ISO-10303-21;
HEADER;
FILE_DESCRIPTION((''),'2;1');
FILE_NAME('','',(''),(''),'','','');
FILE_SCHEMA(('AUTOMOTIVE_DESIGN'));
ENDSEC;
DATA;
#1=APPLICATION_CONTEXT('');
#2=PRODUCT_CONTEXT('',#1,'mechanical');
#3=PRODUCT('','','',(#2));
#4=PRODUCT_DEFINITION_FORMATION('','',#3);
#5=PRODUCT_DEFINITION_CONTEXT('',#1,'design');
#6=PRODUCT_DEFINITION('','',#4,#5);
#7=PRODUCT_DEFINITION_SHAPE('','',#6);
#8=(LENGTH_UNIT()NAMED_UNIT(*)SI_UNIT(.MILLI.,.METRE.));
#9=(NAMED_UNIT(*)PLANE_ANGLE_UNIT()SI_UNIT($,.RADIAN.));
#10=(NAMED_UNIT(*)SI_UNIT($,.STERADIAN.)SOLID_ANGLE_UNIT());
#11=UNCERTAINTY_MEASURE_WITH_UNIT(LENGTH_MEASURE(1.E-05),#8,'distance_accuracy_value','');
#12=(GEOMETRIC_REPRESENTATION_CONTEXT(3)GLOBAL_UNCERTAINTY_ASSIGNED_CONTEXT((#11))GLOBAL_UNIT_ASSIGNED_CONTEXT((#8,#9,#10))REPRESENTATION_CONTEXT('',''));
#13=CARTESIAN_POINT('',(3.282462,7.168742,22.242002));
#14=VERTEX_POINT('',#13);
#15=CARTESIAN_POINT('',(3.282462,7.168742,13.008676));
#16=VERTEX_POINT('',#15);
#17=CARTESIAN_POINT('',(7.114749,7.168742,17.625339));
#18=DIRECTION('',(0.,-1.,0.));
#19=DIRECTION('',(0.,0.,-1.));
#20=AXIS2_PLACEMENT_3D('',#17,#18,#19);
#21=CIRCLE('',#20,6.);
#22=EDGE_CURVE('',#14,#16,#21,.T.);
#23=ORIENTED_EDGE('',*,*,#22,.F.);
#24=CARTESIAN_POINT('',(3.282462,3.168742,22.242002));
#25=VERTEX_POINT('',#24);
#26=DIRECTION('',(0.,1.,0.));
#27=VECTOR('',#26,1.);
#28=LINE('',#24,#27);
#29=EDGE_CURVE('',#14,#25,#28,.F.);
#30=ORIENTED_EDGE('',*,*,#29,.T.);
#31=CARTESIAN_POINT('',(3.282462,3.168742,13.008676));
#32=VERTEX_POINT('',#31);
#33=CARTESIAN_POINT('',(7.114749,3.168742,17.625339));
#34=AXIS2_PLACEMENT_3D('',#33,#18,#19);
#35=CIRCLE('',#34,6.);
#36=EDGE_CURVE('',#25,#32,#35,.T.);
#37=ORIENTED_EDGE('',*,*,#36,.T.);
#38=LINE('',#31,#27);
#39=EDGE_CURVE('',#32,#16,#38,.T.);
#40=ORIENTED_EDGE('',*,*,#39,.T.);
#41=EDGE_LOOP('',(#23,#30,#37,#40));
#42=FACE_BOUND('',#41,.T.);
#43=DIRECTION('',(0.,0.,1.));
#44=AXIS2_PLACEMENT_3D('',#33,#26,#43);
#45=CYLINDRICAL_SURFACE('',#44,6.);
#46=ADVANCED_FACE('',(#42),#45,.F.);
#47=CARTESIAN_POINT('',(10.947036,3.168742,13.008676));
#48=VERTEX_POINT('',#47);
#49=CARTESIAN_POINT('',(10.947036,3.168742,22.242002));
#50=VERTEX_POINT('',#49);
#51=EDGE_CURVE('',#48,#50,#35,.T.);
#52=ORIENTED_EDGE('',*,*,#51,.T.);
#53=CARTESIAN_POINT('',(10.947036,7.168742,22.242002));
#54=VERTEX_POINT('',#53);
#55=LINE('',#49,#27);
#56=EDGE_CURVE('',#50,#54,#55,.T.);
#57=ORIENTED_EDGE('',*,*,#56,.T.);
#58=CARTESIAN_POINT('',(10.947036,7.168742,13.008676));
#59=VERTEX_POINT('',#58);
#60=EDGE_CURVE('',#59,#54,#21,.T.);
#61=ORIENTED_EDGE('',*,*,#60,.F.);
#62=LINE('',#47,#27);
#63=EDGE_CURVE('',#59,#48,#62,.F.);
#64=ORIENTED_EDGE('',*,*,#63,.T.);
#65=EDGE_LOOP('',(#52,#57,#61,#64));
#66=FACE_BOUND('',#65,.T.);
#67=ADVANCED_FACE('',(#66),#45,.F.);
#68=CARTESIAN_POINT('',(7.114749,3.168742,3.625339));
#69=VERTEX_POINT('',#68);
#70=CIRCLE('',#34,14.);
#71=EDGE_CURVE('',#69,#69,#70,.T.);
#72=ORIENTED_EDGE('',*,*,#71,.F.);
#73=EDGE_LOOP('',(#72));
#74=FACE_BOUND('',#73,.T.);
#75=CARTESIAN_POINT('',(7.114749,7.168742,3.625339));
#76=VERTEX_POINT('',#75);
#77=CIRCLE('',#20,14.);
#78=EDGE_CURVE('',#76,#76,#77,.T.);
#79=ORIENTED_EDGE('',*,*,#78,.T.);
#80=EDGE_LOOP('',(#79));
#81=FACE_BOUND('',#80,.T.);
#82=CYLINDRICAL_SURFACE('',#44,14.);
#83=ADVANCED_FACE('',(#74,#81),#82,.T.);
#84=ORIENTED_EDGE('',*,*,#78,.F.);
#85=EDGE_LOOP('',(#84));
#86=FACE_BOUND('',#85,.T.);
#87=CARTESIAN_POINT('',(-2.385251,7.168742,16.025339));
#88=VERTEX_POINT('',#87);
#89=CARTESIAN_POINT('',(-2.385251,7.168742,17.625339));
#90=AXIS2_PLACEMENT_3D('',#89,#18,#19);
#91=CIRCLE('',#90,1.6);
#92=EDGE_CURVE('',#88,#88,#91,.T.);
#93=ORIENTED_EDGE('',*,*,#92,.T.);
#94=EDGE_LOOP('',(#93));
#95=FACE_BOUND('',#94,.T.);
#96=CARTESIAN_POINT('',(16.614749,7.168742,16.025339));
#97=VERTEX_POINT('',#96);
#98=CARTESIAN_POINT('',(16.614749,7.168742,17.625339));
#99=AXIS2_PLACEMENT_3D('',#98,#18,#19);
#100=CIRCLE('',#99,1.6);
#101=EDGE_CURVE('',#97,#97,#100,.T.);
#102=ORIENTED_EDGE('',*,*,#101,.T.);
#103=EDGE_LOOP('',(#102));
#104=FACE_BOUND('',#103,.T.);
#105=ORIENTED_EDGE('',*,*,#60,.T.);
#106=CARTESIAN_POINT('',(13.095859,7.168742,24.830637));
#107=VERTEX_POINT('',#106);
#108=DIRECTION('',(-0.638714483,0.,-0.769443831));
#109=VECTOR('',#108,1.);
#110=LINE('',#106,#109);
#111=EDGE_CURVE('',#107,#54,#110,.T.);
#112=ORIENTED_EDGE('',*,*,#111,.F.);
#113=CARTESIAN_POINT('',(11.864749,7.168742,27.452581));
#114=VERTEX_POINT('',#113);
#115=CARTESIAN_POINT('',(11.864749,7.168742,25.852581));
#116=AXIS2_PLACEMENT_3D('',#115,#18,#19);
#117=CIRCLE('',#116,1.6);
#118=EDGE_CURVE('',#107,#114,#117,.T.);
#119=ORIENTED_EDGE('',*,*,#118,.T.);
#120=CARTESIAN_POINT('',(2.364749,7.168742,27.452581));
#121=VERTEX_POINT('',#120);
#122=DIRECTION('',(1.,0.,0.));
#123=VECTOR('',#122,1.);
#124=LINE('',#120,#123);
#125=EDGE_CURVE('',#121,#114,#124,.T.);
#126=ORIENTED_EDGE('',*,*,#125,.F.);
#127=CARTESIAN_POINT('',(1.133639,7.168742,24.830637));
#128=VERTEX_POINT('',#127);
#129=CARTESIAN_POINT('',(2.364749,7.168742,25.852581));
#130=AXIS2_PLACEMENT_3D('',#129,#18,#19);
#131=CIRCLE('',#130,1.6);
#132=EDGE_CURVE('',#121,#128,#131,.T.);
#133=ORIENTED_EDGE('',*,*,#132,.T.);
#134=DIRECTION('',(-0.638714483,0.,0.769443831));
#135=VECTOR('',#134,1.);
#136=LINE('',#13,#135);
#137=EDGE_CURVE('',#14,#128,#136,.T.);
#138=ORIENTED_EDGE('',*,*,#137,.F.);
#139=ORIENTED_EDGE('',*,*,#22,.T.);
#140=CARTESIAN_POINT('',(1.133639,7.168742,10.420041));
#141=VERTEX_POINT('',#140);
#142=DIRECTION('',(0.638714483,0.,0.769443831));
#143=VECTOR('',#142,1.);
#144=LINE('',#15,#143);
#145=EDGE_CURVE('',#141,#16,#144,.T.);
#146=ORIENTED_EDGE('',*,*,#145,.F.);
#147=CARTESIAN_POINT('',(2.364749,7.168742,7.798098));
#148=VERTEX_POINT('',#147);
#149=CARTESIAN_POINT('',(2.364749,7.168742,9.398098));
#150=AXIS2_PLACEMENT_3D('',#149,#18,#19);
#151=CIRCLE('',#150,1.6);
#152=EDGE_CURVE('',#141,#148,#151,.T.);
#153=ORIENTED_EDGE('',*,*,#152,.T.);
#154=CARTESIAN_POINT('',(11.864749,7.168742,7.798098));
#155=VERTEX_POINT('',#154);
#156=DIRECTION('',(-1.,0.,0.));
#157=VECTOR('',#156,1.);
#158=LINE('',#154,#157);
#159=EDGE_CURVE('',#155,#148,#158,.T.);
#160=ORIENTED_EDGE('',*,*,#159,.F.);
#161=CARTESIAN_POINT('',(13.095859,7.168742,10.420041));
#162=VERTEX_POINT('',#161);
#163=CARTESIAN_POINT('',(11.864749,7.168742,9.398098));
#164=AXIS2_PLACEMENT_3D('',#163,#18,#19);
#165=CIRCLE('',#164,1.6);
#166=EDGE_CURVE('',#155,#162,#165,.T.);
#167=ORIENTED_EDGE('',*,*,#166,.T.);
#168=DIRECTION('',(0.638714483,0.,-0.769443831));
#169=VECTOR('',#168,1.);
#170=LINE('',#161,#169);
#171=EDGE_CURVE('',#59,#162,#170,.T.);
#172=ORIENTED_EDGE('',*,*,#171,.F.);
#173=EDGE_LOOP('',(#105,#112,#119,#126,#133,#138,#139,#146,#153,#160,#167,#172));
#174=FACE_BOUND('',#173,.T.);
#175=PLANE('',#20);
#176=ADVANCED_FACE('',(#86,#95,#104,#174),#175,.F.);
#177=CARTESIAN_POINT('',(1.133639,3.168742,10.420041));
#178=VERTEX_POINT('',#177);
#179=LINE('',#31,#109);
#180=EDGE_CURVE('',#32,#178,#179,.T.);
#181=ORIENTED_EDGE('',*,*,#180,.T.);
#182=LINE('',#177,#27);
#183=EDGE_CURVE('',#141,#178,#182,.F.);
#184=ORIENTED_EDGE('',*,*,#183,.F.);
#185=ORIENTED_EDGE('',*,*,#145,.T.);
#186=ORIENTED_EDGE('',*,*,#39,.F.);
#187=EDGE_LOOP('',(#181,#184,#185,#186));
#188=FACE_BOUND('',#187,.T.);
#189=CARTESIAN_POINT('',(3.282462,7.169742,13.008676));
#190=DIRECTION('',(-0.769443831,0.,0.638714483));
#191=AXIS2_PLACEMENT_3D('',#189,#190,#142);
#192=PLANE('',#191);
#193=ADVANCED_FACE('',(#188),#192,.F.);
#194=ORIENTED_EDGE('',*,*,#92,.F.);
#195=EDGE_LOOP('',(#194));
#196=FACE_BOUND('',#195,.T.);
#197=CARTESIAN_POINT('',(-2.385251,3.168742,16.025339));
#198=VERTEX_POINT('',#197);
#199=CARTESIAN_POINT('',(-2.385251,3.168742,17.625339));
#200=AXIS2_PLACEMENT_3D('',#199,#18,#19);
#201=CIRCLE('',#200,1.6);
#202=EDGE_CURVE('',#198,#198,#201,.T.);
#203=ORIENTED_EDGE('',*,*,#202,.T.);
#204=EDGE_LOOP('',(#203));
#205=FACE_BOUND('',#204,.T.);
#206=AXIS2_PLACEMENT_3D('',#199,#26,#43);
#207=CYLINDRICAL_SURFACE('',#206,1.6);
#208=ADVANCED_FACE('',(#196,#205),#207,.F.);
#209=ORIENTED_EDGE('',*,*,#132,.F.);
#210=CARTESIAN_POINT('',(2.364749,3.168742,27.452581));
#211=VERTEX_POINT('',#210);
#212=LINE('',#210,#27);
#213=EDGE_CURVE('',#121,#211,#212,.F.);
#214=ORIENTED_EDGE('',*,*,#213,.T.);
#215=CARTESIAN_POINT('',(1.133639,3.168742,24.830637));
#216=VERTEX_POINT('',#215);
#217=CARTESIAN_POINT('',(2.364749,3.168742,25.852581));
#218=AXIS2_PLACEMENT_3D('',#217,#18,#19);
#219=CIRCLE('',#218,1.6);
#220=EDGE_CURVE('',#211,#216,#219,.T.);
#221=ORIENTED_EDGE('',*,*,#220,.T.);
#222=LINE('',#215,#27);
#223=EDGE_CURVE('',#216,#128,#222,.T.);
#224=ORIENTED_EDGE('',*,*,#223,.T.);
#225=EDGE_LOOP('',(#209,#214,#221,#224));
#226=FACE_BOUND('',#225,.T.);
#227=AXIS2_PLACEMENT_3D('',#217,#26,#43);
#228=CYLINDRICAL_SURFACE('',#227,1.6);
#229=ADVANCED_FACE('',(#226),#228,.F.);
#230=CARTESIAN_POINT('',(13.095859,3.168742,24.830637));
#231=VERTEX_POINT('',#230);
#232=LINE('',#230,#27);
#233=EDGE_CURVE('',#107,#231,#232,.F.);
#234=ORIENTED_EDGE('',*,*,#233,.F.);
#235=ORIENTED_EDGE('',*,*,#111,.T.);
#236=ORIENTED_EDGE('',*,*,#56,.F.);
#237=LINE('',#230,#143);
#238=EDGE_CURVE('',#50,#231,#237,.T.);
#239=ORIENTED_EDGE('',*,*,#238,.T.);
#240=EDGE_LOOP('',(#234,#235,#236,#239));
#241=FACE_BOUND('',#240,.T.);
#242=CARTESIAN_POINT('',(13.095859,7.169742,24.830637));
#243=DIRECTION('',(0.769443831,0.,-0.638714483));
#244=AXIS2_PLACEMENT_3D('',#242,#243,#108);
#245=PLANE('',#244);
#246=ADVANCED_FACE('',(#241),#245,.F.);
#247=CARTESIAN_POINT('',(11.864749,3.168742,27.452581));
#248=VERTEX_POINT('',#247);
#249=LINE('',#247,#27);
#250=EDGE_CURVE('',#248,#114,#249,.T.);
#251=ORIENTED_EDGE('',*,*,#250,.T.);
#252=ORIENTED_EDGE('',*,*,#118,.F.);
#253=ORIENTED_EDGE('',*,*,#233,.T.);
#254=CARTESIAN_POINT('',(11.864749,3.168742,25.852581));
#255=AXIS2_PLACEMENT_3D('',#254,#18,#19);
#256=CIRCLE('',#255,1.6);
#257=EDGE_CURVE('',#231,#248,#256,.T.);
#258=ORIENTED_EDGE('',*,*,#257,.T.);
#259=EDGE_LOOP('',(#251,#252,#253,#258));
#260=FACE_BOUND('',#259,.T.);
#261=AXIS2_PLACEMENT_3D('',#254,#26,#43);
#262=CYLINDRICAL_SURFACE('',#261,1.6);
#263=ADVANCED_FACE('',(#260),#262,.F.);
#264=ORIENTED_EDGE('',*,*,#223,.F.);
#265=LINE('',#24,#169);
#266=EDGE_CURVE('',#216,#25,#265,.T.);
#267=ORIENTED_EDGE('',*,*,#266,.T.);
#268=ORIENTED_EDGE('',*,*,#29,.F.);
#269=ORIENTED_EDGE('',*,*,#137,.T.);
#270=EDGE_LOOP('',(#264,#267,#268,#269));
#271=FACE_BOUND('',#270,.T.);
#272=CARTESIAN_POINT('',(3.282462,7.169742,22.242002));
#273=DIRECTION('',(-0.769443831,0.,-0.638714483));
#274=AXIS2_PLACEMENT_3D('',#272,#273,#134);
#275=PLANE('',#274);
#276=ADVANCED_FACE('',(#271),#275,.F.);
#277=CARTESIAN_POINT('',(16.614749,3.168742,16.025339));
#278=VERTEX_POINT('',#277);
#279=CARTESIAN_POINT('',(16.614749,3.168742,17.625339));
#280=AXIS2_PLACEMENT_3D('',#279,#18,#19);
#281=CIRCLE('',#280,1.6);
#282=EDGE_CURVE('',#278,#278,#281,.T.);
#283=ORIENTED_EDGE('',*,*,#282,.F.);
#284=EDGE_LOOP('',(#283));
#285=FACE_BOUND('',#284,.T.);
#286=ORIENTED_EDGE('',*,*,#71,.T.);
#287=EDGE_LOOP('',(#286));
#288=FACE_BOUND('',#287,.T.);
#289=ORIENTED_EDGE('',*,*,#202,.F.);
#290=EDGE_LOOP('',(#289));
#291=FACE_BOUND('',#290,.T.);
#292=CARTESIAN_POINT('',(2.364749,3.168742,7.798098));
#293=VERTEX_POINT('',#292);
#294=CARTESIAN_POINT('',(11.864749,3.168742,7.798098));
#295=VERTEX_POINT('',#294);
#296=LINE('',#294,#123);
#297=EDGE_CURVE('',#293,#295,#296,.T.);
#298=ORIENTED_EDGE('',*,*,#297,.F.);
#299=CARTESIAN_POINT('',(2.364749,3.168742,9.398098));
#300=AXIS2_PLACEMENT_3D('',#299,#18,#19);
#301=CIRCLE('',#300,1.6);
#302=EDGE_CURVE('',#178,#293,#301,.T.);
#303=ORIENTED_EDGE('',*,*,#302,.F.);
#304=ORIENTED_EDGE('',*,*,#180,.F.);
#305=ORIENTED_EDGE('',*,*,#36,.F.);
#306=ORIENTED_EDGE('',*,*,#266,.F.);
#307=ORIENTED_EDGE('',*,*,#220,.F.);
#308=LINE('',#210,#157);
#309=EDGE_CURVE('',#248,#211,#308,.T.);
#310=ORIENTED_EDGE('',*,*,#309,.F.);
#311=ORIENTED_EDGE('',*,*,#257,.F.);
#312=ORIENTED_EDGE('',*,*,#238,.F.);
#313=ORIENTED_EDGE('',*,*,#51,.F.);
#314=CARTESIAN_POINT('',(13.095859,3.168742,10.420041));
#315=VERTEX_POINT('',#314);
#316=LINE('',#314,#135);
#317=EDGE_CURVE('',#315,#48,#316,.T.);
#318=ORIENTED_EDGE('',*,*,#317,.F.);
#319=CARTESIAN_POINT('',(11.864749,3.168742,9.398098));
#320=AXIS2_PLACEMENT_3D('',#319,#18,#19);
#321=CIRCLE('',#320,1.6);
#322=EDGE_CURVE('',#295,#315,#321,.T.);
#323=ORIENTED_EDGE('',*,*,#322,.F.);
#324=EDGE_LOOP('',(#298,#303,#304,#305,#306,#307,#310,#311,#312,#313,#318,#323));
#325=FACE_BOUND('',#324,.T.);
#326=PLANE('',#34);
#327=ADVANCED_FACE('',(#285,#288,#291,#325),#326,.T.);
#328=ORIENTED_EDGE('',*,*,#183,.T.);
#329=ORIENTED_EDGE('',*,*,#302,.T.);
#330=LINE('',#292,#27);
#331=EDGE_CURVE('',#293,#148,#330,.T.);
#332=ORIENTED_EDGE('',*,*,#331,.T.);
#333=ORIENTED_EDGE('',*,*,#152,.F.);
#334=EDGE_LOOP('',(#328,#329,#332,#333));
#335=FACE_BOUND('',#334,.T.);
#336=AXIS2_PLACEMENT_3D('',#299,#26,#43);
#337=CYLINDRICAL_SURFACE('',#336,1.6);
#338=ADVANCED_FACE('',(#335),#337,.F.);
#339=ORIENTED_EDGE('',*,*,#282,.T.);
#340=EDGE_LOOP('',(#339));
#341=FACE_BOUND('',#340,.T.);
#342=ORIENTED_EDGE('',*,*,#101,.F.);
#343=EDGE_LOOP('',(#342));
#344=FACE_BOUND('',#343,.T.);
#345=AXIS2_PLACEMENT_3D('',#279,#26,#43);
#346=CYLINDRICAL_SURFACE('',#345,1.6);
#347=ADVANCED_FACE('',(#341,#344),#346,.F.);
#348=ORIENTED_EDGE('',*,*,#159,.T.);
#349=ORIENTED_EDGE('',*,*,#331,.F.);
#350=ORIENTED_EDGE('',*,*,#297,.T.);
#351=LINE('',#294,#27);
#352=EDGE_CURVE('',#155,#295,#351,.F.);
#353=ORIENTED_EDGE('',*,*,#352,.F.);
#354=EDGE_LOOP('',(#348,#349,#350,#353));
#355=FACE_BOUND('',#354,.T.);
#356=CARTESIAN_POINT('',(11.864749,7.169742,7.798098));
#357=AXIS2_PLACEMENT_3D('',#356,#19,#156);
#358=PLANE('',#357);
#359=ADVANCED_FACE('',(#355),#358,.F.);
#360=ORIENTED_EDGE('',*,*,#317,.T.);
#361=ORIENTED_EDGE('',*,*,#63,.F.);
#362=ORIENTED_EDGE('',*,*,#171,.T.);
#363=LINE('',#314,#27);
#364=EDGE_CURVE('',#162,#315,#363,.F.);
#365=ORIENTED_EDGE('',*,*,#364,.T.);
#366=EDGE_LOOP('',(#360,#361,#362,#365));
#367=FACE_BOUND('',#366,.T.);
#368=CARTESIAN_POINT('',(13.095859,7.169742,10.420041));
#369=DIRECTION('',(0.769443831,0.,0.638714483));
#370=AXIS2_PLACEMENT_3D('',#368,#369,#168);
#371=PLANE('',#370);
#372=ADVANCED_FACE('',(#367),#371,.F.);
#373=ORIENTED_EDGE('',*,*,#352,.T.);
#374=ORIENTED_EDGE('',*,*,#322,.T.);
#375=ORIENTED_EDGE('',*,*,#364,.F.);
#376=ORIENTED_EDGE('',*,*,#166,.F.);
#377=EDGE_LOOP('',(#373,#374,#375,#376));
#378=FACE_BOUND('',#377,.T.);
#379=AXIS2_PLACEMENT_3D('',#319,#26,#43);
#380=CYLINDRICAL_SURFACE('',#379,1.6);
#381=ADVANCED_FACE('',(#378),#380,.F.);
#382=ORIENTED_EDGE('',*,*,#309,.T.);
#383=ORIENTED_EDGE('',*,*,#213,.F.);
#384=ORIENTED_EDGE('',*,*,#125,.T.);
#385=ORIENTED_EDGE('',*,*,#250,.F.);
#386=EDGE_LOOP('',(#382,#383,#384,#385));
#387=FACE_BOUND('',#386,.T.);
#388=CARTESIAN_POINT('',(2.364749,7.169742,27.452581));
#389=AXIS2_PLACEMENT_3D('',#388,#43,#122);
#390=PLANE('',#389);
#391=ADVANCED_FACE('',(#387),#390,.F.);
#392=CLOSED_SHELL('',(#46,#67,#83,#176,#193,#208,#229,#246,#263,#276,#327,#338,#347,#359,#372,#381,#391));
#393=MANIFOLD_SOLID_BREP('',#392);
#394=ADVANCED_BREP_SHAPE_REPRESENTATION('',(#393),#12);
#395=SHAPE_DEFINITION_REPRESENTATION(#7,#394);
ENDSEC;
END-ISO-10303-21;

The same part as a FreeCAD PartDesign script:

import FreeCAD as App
import Part
import Sketcher
from FreeCAD import Vector
Q = App.Units.Quantity

doc = App.newDocument("Part")
body = doc.addObject("PartDesign::Body", "Body")

# Sketch on XZ plane
sketch1 = doc.addObject("Sketcher::SketchObject", "Sketch")
body.addObject(sketch1)
sketch1.AttachmentSupport = (doc.XZ_Plane, [""])
sketch1.MapMode = "FlatFace"
sketch1.AttachmentOffset = App.Placement(Vector(0, 0, -7.168742), App.Rotation())
sketch1.addGeometry([
    Part.Circle(Vector(7.1, 17.6, 0), Vector(0, 0, 1), 14),  # 0
    Part.Circle(Vector(2.4, 9.4, 0), Vector(0, 0, 1), 1.6),  # 1
    Part.Circle(Vector(11.9, 9.4, 0), Vector(0, 0, 1), 1.6),  # 2
    Part.Circle(Vector(-2.4, 17.6, 0), Vector(0, 0, 1), 1.6),  # 3
    Part.Circle(Vector(2.4, 25.9, 0), Vector(0, 0, 1), 1.6),  # 4
    Part.Circle(Vector(7.1, 17.6, 0), Vector(0, 0, 1), 6),  # 5
    Part.Circle(Vector(16.6, 17.6, 0), Vector(0, 0, 1), 1.6),  # 6
    Part.Circle(Vector(11.9, 25.9, 0), Vector(0, 0, 1), 1.6),  # 7
], False)
sketch1.addConstraint([
    Sketcher.Constraint("Coincident", 5, 3, 0, 3),
    Sketcher.Constraint("Equal", 1, 2),
    Sketcher.Constraint("Equal", 2, 3),
    Sketcher.Constraint("Equal", 3, 4),
    Sketcher.Constraint("Equal", 4, 6),
    Sketcher.Constraint("Equal", 6, 7),
    Sketcher.Constraint("Horizontal", 1, 3, 2, 3),
    Sketcher.Constraint("Horizontal", 0, 3, 3, 3),
    Sketcher.Constraint("Horizontal", 5, 3, 6, 3),
    Sketcher.Constraint("Horizontal", 4, 3, 7, 3),
    Sketcher.Constraint("Vertical", 1, 3, 4, 3),
    Sketcher.Constraint("Vertical", 2, 3, 7, 3),
    Sketcher.Constraint("Diameter", 0, Q("28 mm")),
    Sketcher.Constraint("Diameter", 5, Q("12 mm")),
    Sketcher.Constraint("Diameter", 1, Q("3.2 mm")),
    Sketcher.Constraint("DistanceX", 1, 3, 2, 3, Q("9.5 mm")),
    Sketcher.Constraint("DistanceX", 3, 3, 0, 3, Q("9.5 mm")),
    Sketcher.Constraint("DistanceX", 0, 3, 6, 3, Q("9.5 mm")),
    Sketcher.Constraint("DistanceX", 1, 3, 0, 3, Q("4.75 mm")),
    Sketcher.Constraint("DistanceX", -1, 1, 0, 3, Q("7.114749 mm")),
    Sketcher.Constraint("DistanceY", -1, 1, 0, 3, Q("17.625339 mm")),
    Sketcher.Constraint("DistanceY", -1, 1, 4, 3, Q("25.852581 mm")),
    Sketcher.Constraint("DistanceY", 1, 3, 0, 3, Q("8.227241 mm")),
])
pad1 = doc.addObject("PartDesign::Pad", "Pad")
body.addObject(pad1)
pad1.Profile = sketch1
pad1.Length = 4

# Sketch on XZ plane
sketch2 = doc.addObject("Sketcher::SketchObject", "Sketch001")
body.addObject(sketch2)
sketch2.AttachmentSupport = (doc.XZ_Plane, [""])
sketch2.MapMode = "FlatFace"
sketch2.AttachmentOffset = App.Placement(Vector(0, 0, -3.168742), App.Rotation())
sketch2.addGeometry([
    Part.LineSegment(Vector(2.4, 7.8, 0), Vector(11.9, 7.8, 0)),  # 0
    Part.LineSegment(Vector(11.9, 7.8, 0), Vector(13.1, 10.4, 0)),  # 1
    Part.LineSegment(Vector(13.1, 10.4, 0), Vector(10.9, 13, 0)),  # 2
    Part.LineSegment(Vector(10.9, 13, 0), Vector(3.3, 13, 0)),  # 3
    Part.LineSegment(Vector(3.3, 13, 0), Vector(1.1, 10.4, 0)),  # 4
    Part.LineSegment(Vector(1.1, 10.4, 0), Vector(2.4, 7.8, 0)),  # 5
], False)
sketch2.addConstraint([
    Sketcher.Constraint("Coincident", 0, 2, 1, 1),
    Sketcher.Constraint("Coincident", 1, 2, 2, 1),
    Sketcher.Constraint("Coincident", 2, 2, 3, 1),
    Sketcher.Constraint("Coincident", 3, 2, 4, 1),
    Sketcher.Constraint("Coincident", 4, 2, 5, 1),
    Sketcher.Constraint("Coincident", 5, 2, 0, 1),
    Sketcher.Constraint("Horizontal", 0),
    Sketcher.Constraint("Horizontal", 3),
    Sketcher.Constraint("Horizontal", 1, 2, 4, 2),
    Sketcher.Constraint("Equal", 2, 4),
    Sketcher.Constraint("Equal", 1, 5),
    Sketcher.Constraint("DistanceX", 0, 1, 0, 2, Q("9.5 mm")),
    Sketcher.Constraint("DistanceX", 3, 2, 3, 1, Q("7.664574 mm")),
    Sketcher.Constraint("DistanceX", -1, 1, 0, 2, Q("11.864749 mm")),
    Sketcher.Constraint("DistanceX", -1, 1, 1, 2, Q("13.095859 mm")),
    Sketcher.Constraint("DistanceY", -1, 1, 1, 2, Q("10.420041 mm")),
    Sketcher.Constraint("DistanceY", 0, 2, 2, 2, Q("5.210578 mm")),
    Sketcher.Constraint("Distance", 1, Q("2.896587 mm")),
])
pocket1 = doc.addObject("PartDesign::Pocket", "Pocket")
body.addObject(pocket1)
pocket1.Profile = sketch2
pocket1.Type = "UpToFirst"

# Sketch on XZ plane
sketch3 = doc.addObject("Sketcher::SketchObject", "Sketch002")
body.addObject(sketch3)
sketch3.AttachmentSupport = (doc.XZ_Plane, [""])
sketch3.MapMode = "FlatFace"
sketch3.AttachmentOffset = App.Placement(Vector(0, 0, -3.168742), App.Rotation())
sketch3.addGeometry([
    Part.LineSegment(Vector(2.4, 27.5, 0), Vector(1.1, 24.8, 0)),  # 0
    Part.LineSegment(Vector(1.1, 24.8, 0), Vector(3.3, 22.2, 0)),  # 1
    Part.LineSegment(Vector(3.3, 22.2, 0), Vector(10.9, 22.2, 0)),  # 2
    Part.LineSegment(Vector(10.9, 22.2, 0), Vector(13.1, 24.8, 0)),  # 3
    Part.LineSegment(Vector(13.1, 24.8, 0), Vector(11.9, 27.5, 0)),  # 4
    Part.LineSegment(Vector(11.9, 27.5, 0), Vector(2.4, 27.5, 0)),  # 5
], False)
sketch3.addConstraint([
    Sketcher.Constraint("Coincident", 0, 2, 1, 1),
    Sketcher.Constraint("Coincident", 1, 2, 2, 1),
    Sketcher.Constraint("Coincident", 2, 2, 3, 1),
    Sketcher.Constraint("Coincident", 3, 2, 4, 1),
    Sketcher.Constraint("Coincident", 4, 2, 5, 1),
    Sketcher.Constraint("Coincident", 5, 2, 0, 1),
    Sketcher.Constraint("Horizontal", 2),
    Sketcher.Constraint("Horizontal", 5),
    Sketcher.Constraint("Horizontal", 0, 2, 3, 2),
    Sketcher.Constraint("Equal", 1, 3),
    Sketcher.Constraint("Equal", 0, 4),
    Sketcher.Constraint("DistanceX", 5, 2, 5, 1, Q("9.5 mm")),
    Sketcher.Constraint("DistanceX", 2, 1, 2, 2, Q("7.664574 mm")),
    Sketcher.Constraint("DistanceX", -1, 1, 0, 2, Q("1.133639 mm")),
    Sketcher.Constraint("DistanceX", -1, 1, 3, 2, Q("13.095859 mm")),
    Sketcher.Constraint("DistanceY", -1, 1, 4, 2, Q("27.452581 mm")),
    Sketcher.Constraint("DistanceY", 2, 2, 4, 2, Q("5.210578 mm")),
    Sketcher.Constraint("Distance", 0, Q("2.896587 mm")),
])
pocket2 = doc.addObject("PartDesign::Pocket", "Pocket001")
body.addObject(pocket2)
pocket2.Profile = sketch3
pocket2.Type = "UpToFirst"

doc.recompute()
